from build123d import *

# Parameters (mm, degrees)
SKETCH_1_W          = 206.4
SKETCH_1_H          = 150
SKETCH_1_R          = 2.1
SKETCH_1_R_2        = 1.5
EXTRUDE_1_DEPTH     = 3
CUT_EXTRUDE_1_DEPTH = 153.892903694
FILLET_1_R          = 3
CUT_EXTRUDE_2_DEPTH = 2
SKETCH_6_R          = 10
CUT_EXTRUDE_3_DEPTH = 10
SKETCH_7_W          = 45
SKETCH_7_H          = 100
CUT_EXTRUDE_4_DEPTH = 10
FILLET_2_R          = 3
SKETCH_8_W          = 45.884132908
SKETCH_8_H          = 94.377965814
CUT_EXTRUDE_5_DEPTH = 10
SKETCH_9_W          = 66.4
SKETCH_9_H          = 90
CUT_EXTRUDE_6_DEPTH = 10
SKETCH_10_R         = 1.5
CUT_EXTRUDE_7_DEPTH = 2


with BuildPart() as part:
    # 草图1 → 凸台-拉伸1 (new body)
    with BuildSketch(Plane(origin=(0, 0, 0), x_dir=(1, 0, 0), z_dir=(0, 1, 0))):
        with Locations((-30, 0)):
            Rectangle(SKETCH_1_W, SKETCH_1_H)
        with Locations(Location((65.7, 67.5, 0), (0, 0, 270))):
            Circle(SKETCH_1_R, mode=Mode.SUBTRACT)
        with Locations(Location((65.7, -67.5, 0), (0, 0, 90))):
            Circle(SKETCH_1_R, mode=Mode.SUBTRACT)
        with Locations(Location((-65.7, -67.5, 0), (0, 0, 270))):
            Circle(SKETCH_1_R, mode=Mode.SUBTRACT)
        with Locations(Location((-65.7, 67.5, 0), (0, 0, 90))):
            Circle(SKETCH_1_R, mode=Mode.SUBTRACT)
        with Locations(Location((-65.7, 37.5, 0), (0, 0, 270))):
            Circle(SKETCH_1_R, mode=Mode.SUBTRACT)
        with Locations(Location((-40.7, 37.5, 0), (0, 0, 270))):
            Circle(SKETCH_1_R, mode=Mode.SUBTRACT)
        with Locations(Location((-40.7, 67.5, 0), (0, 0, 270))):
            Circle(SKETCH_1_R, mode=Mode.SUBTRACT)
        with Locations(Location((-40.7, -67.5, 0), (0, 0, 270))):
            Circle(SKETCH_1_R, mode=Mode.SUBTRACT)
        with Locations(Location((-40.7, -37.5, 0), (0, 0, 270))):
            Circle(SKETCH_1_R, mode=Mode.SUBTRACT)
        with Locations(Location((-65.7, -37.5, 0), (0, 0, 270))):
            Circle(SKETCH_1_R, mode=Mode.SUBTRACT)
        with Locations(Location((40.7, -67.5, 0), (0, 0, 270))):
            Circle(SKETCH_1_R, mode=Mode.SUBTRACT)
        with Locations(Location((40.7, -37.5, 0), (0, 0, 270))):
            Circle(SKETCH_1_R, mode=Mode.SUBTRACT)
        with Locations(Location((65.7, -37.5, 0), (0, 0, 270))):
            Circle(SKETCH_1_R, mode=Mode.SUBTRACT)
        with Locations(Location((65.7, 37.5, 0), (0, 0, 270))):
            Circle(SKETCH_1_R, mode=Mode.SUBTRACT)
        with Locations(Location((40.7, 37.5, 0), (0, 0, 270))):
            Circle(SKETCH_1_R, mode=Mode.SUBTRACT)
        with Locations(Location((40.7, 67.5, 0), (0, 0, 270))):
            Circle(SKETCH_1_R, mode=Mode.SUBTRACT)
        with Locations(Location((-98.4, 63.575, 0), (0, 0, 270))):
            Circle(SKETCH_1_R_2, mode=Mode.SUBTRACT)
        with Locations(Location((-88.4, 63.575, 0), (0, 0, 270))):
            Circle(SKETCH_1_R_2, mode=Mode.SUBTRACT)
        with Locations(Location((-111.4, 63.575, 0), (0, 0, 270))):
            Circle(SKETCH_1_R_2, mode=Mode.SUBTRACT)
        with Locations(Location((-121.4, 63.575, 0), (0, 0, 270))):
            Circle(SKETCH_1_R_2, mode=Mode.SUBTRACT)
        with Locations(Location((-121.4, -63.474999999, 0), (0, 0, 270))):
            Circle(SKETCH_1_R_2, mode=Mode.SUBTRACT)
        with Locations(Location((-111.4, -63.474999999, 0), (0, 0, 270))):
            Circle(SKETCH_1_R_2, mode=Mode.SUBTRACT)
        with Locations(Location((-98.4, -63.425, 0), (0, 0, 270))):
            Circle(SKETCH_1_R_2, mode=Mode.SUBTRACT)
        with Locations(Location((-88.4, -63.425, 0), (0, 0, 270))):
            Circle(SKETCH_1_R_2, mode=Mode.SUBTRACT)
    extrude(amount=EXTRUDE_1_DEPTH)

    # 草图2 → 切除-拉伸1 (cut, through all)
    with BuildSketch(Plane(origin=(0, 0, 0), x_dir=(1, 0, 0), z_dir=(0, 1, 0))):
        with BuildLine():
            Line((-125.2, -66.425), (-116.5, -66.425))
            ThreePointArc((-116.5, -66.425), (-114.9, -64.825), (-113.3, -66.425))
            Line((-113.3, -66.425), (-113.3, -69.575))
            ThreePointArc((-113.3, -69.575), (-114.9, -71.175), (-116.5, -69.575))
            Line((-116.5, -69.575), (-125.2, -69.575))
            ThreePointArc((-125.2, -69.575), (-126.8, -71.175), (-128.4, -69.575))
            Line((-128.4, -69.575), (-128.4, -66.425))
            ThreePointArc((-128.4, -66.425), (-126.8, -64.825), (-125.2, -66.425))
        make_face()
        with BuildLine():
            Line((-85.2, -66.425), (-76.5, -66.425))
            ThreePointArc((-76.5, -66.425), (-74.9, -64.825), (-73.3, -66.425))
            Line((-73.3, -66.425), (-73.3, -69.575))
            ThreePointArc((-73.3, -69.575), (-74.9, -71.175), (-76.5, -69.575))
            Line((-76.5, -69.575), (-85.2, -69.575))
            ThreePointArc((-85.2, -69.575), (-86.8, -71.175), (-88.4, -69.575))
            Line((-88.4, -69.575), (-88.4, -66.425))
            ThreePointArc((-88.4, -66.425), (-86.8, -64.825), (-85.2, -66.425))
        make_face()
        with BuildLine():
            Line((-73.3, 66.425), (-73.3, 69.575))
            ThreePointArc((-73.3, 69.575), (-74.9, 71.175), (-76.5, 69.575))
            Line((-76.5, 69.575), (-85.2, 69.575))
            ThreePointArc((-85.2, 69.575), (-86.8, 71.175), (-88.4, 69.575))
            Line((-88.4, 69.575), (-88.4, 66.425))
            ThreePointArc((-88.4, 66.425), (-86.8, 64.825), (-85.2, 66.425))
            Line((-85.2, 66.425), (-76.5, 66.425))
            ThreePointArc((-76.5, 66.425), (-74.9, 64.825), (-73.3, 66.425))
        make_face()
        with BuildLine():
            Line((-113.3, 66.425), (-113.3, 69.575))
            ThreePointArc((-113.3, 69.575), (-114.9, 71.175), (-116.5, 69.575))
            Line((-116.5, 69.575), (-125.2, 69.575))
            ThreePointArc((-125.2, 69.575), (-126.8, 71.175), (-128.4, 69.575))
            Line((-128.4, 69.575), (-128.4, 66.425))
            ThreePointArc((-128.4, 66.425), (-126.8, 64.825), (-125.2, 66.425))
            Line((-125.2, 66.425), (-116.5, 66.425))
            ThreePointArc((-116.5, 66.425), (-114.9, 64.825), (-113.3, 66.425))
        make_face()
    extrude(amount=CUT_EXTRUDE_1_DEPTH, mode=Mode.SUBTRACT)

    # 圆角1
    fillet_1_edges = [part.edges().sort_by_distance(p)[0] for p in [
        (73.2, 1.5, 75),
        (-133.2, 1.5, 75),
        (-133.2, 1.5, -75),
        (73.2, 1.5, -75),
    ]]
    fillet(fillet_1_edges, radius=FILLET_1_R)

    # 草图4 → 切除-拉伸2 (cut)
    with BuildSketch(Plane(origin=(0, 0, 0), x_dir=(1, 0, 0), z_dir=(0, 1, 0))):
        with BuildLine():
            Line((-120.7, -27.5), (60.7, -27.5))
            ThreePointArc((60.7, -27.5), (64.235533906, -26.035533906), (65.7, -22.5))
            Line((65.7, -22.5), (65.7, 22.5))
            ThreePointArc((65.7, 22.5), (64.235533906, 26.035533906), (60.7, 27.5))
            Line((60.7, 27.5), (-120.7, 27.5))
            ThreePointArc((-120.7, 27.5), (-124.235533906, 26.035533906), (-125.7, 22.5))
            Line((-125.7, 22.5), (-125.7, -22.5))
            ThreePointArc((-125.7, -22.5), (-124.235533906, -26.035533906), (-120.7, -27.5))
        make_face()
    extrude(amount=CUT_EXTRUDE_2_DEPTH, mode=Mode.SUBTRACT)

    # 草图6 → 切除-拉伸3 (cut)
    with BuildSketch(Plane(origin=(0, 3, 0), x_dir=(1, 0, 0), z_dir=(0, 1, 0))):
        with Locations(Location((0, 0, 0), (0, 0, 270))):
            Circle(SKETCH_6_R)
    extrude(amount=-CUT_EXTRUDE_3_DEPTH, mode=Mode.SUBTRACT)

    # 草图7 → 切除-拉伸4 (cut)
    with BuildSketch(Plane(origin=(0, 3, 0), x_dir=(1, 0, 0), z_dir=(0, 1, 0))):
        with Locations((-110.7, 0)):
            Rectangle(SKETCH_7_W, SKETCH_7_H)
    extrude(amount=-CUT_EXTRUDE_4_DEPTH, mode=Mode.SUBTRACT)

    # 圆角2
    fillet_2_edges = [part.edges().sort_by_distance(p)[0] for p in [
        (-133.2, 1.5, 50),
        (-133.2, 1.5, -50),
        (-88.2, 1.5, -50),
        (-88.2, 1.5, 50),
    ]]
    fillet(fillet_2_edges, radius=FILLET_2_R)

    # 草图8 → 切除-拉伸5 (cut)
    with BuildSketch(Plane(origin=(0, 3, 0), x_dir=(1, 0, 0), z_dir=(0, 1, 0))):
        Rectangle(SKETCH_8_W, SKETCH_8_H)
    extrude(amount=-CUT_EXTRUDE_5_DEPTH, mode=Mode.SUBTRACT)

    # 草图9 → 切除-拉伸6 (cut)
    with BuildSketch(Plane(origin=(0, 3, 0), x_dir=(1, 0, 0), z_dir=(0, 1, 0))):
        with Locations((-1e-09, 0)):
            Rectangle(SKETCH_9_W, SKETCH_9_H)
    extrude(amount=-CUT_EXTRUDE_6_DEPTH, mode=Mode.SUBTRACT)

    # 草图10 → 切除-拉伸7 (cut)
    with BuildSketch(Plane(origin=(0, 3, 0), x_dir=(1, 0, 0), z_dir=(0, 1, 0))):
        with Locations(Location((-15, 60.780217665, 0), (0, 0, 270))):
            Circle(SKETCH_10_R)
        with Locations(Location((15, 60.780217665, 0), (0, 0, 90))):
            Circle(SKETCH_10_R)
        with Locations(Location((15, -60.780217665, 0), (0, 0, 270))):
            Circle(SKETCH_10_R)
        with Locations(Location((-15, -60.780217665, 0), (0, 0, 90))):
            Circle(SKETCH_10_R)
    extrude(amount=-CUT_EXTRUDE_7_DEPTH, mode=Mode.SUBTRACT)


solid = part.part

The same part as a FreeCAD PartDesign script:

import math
import FreeCAD as App
import Part
import Sketcher


def edges_at(feature, points):
    """Names of the edges that pass closest to the given points."""
    edges = feature.Shape.Edges
    near = lambda p: min(range(len(edges)), key=lambda i: edges[i].distToShape(Part.Vertex(*p))[0])
    return sorted({f"Edge{near(p) + 1}" for p in points})

doc = App.newDocument("Part")
body = doc.addObject("PartDesign::Body", "Body")

# Sketch on XZ plane
sketch1 = doc.addObject("Sketcher::SketchObject", "Sketch")
body.addObject(sketch1)
sketch1.AttachmentSupport = (doc.XZ_Plane, [""])
sketch1.MapMode = "FlatFace"
sketch1.addGeometry([
    Part.LineSegment(App.Vector(-133.2, -75, 0), App.Vector(-133.2, 75, 0)),  # 0
    Part.LineSegment(App.Vector(-133.2, 75, 0), App.Vector(73.2, 75, 0)),  # 1
    Part.LineSegment(App.Vector(73.2, 75, 0), App.Vector(73.2, -75, 0)),  # 2
    Part.LineSegment(App.Vector(73.2, -75, 0), App.Vector(-133.2, -75, 0)),  # 3
    Part.Circle(App.Vector(-121.4, 63.475, 0), App.Vector(0, 0, 1), 1.5),  # 4
    Part.Circle(App.Vector(-111.4, 63.475, 0), App.Vector(0, 0, 1), 1.5),  # 5
    Part.Circle(App.Vector(-98.4, 63.425, 0), App.Vector(0, 0, 1), 1.5),  # 6
    Part.Circle(App.Vector(-88.4, 63.425, 0), App.Vector(0, 0, 1), 1.5),  # 7
    Part.Circle(App.Vector(-65.7, 67.5, 0), App.Vector(0, 0, 1), 2.1),  # 8
    Part.Circle(App.Vector(-40.7, 67.5, 0), App.Vector(0, 0, 1), 2.1),  # 9
    Part.Circle(App.Vector(-65.7, 37.5, 0), App.Vector(0, 0, 1), 2.1),  # 10
    Part.Circle(App.Vector(-40.7, 37.5, 0), App.Vector(0, 0, 1), 2.1),  # 11
    Part.Circle(App.Vector(40.7, 67.5, 0), App.Vector(0, 0, 1), 2.1),  # 12
    Part.Circle(App.Vector(65.7, 67.5, 0), App.Vector(0, 0, 1), 2.1),  # 13
    Part.Circle(App.Vector(40.7, 37.5, 0), App.Vector(0, 0, 1), 2.1),  # 14
    Part.Circle(App.Vector(65.7, 37.5, 0), App.Vector(0, 0, 1), 2.1),  # 15
    Part.Circle(App.Vector(-121.4, -63.575, 0), App.Vector(0, 0, 1), 1.5),  # 16
    Part.Circle(App.Vector(-111.4, -63.575, 0), App.Vector(0, 0, 1), 1.5),  # 17
    Part.Circle(App.Vector(-98.4, -63.575, 0), App.Vector(0, 0, 1), 1.5),  # 18
    Part.Circle(App.Vector(-88.4, -63.575, 0), App.Vector(0, 0, 1), 1.5),  # 19
    Part.Circle(App.Vector(-65.7, -37.5, 0), App.Vector(0, 0, 1), 2.1),  # 20
    Part.Circle(App.Vector(-40.7, -37.5, 0), App.Vector(0, 0, 1), 2.1),  # 21
    Part.Circle(App.Vector(-65.7, -67.5, 0), App.Vector(0, 0, 1), 2.1),  # 22
    Part.Circle(App.Vector(-40.7, -67.5, 0), App.Vector(0, 0, 1), 2.1),  # 23
    Part.Circle(App.Vector(40.7, -37.5, 0), App.Vector(0, 0, 1), 2.1),  # 24
    Part.Circle(App.Vector(65.7, -37.5, 0), App.Vector(0, 0, 1), 2.1),  # 25
    Part.Circle(App.Vector(40.7, -67.5, 0), App.Vector(0, 0, 1), 2.1),  # 26
    Part.Circle(App.Vector(65.7, -67.5, 0), App.Vector(0, 0, 1), 2.1),  # 27
], False)
sketch1.addConstraint([
    Sketcher.Constraint("Coincident", 0, 2, 1, 1),
    Sketcher.Constraint("Coincident", 1, 2, 2, 1),
    Sketcher.Constraint("Coincident", 2, 2, 3, 1),
    Sketcher.Constraint("Coincident", 3, 2, 0, 1),
    Sketcher.Constraint("Vertical", 0),
    Sketcher.Constraint("Horizontal", 1),
    Sketcher.Constraint("Vertical", 2),
    Sketcher.Constraint("Horizontal", 3),
    Sketcher.Constraint("Equal", 4, 5),
    Sketcher.Constraint("Equal", 5, 6),
    Sketcher.Constraint("Equal", 6, 7),
    Sketcher.Constraint("Equal", 8, 9),
    Sketcher.Constraint("Equal", 9, 10),
    Sketcher.Constraint("Equal", 10, 11),
    Sketcher.Constraint("Equal", 11, 12),
    Sketcher.Constraint("Equal", 12, 13),
    Sketcher.Constraint("Equal", 13, 14),
    Sketcher.Constraint("Equal", 14, 15),
    Sketcher.Constraint("Equal", 7, 16),
    Sketcher.Constraint("Equal", 16, 17),
    Sketcher.Constraint("Equal", 17, 18),
    Sketcher.Constraint("Equal", 18, 19),
    Sketcher.Constraint("Equal", 15, 20),
    Sketcher.Constraint("Equal", 20, 21),
    Sketcher.Constraint("Equal", 21, 22),
    Sketcher.Constraint("Equal", 22, 23),
    Sketcher.Constraint("Equal", 23, 24),
    Sketcher.Constraint("Equal", 24, 25),
    Sketcher.Constraint("Equal", 25, 26),
    Sketcher.Constraint("Equal", 26, 27),
    Sketcher.Constraint("Symmetric", 15, 3, 20, 3, -1, 1),
    Sketcher.Constraint("Symmetric", 14, 3, 21, 3, -1, 1),
    Sketcher.Constraint("Symmetric", 13, 3, 22, 3, -1, 1),
    Sketcher.Constraint("Symmetric", 12, 3, 23, 3, -1, 1),
    Sketcher.Constraint("Symmetric", 11, 3, 24, 3, -1, 1),
    Sketcher.Constraint("Symmetric", 10, 3, 25, 3, -1, 1),
    Sketcher.Constraint("Symmetric", 9, 3, 26, 3, -1, 1),
    Sketcher.Constraint("Symmetric", 8, 3, 27, 3, -1, 1),
    Sketcher.Constraint("Symmetric", 9, 3, 12, 3, -2),
    Sketcher.Constraint("Symmetric", 8, 3, 13, 3, -2),
    Sketcher.Constraint("Symmetric", 11, 3, 14, 3, -2),
    Sketcher.Constraint("Symmetric", 10, 3, 15, 3, -2),
    Sketcher.Constraint("Horizontal", 4, 3, 5, 3),
    Sketcher.Constraint("Horizontal", 6, 3, 7, 3),
    Sketcher.Constraint("Horizontal", 8, 3, 9, 3),
    Sketcher.Constraint("Horizontal", 10, 3, 11, 3),
    Sketcher.Constraint("Horizontal", 16, 3, 17, 3),
    Sketcher.Constraint("Horizontal", 17, 3, 18, 3),
    Sketcher.Constraint("Horizontal", 18, 3, 19, 3),
    Sketcher.Constraint("Vertical", 8, 3, 10, 3),
    Sketcher.Constraint("Vertical", 9, 3, 11, 3),
    Sketcher.Constraint("Vertical", 4, 3, 16, 3),
    Sketcher.Constraint("Vertical", 5, 3, 17, 3),
    Sketcher.Constraint("Vertical", 6, 3, 18, 3),
    Sketcher.Constraint("Vertical", 7, 3, 19, 3),
    Sketcher.Constraint("Diameter", 4, 3.0),
    Sketcher.Constraint("Diameter", 8, 4.2),
    Sketcher.Constraint("DistanceY", 0, 1, 0, 2, 150.0),
    Sketcher.Constraint("DistanceX", 1, 1, 1, 2, 206.4),
    Sketcher.Constraint("DistanceY", -1, 1, 0, 2, 75.0),
    Sketcher.Constraint("DistanceX", 4, 3, 5, 3, 10.0),
    Sketcher.Constraint("DistanceX", 5, 3, 6, 3, 13.0),
    Sketcher.Constraint("DistanceX", 6, 3, 7, 3, 10.0),
    Sketcher.Constraint("DistanceX", 8, 3, 9, 3, 25.0),
    Sketcher.Constraint("DistanceY", 10, 3, 8, 3, 30.0),
    Sketcher.Constraint("DistanceY", 16, 3, 6, 3, 127.0),
    Sketcher.Constraint("DistanceY", 20, 3, 10, 3, 75.0),
    Sketcher.Constraint("DistanceX", 4, 3, -1, 1, 121.4),
    Sketcher.Constraint("DistanceX", 8, 3, -1, 1, 65.7),
    Sketcher.Constraint("DistanceX", 0, 2, -1, 1, 133.2),
    Sketcher.Constraint("DistanceY", 6, 3, 5, 3, 0.05),
    Sketcher.Constraint("DistanceY", -1, 1, 4, 3, 63.475),
])
pad1 = doc.addObject("PartDesign::Pad", "Pad")
body.addObject(pad1)
pad1.Profile = sketch1
pad1.Length = 3
pad1.Reversed = True

# Sketch on XZ plane
sketch2 = doc.addObject("Sketcher::SketchObject", "Sketch001")
body.addObject(sketch2)
sketch2.AttachmentSupport = (doc.XZ_Plane, [""])
sketch2.MapMode = "FlatFace"
sketch2.addGeometry([
    Part.LineSegment(App.Vector(-116.5, 66.425, 0), App.Vector(-125.2, 66.425, 0)),  # 0
    Part.ArcOfCircle(Part.Circle(App.Vector(-126.8, 66.425, 0), App.Vector(0, 0, 1), 1.6), math.radians(180), math.radians(360)),  # 1
    Part.LineSegment(App.Vector(-128.4, 66.425, 0), App.Vector(-128.4, 69.575, 0)),  # 2
    Part.ArcOfCircle(Part.Circle(App.Vector(-126.8, 69.575, 0), App.Vector(0, 0, 1), 1.6), math.radians(0), math.radians(180)),  # 3
    Part.LineSegment(App.Vector(-125.2, 69.575, 0), App.Vector(-116.5, 69.575, 0)),  # 4
    Part.ArcOfCircle(Part.Circle(App.Vector(-114.9, 69.575, 0), App.Vector(0, 0, 1), 1.6), math.radians(0), math.radians(180)),  # 5
    Part.LineSegment(App.Vector(-113.3, 69.575, 0), App.Vector(-113.3, 66.425, 0)),  # 6
    Part.ArcOfCircle(Part.Circle(App.Vector(-114.9, 66.425, 0), App.Vector(0, 0, 1), 1.6), math.radians(180), math.radians(360)),  # 7
    Part.LineSegment(App.Vector(-76.5, 66.425, 0), App.Vector(-85.2, 66.425, 0)),  # 8
    Part.ArcOfCircle(Part.Circle(App.Vector(-86.8, 66.425, 0), App.Vector(0, 0, 1), 1.6), math.radians(180), math.radians(360)),  # 9
    Part.LineSegment(App.Vector(-88.4, 66.425, 0), App.Vector(-88.4, 69.575, 0)),  # 10
    Part.ArcOfCircle(Part.Circle(App.Vector(-86.8, 69.575, 0), App.Vector(0, 0, 1), 1.6), math.radians(0), math.radians(180)),  # 11
    Part.LineSegment(App.Vector(-85.2, 69.575, 0), App.Vector(-76.5, 69.575, 0)),  # 12
    Part.ArcOfCircle(Part.Circle(App.Vector(-74.9, 69.575, 0), App.Vector(0, 0, 1), 1.6), math.radians(0), math.radians(180)),  # 13
    Part.LineSegment(App.Vector(-73.3, 69.575, 0), App.Vector(-73.3, 66.425, 0)),  # 14
    Part.ArcOfCircle(Part.Circle(App.Vector(-74.9, 66.425, 0), App.Vector(0, 0, 1), 1.6), math.radians(180), math.radians(360)),  # 15
    Part.LineSegment(App.Vector(-73.3, -66.425, 0), App.Vector(-73.3, -69.575, 0)),  # 16
    Part.ArcOfCircle(Part.Circle(App.Vector(-74.9, -69.575, 0), App.Vector(0, 0, 1), 1.6), math.radians(180), math.radians(360)),  # 17
    Part.LineSegment(App.Vector(-76.5, -69.575, 0), App.Vector(-85.2, -69.575, 0)),  # 18
    Part.ArcOfCircle(Part.Circle(App.Vector(-86.8, -69.575, 0), App.Vector(0, 0, 1), 1.6), math.radians(180), math.radians(360)),  # 19
    Part.LineSegment(App.Vector(-88.4, -69.575, 0), App.Vector(-88.4, -66.425, 0)),  # 20
    Part.ArcOfCircle(Part.Circle(App.Vector(-86.8, -66.425, 0), App.Vector(0, 0, 1), 1.6), math.radians(0), math.radians(180)),  # 21
    Part.LineSegment(App.Vector(-85.2, -66.425, 0), App.Vector(-76.5, -66.425, 0)),  # 22
    Part.ArcOfCircle(Part.Circle(App.Vector(-74.9, -66.425, 0), App.Vector(0, 0, 1), 1.6), math.radians(0), math.radians(180)),  # 23
    Part.LineSegment(App.Vector(-113.3, -66.425, 0), App.Vector(-113.3, -69.575, 0)),  # 24
    Part.ArcOfCircle(Part.Circle(App.Vector(-114.9, -69.575, 0), App.Vector(0, 0, 1), 1.6), math.radians(180), math.radians(360)),  # 25
    Part.LineSegment(App.Vector(-116.5, -69.575, 0), App.Vector(-125.2, -69.575, 0)),  # 26
    Part.ArcOfCircle(Part.Circle(App.Vector(-126.8, -69.575, 0), App.Vector(0, 0, 1), 1.6), math.radians(180), math.radians(360)),  # 27
    Part.LineSegment(App.Vector(-128.4, -69.575, 0), App.Vector(-128.4, -66.425, 0)),  # 28
    Part.ArcOfCircle(Part.Circle(App.Vector(-126.8, -66.425, 0), App.Vector(0, 0, 1), 1.6), math.radians(0), math.radians(180)),  # 29
    Part.LineSegment(App.Vector(-125.2, -66.425, 0), App.Vector(-116.5, -66.425, 0)),  # 30
    Part.ArcOfCircle(Part.Circle(App.Vector(-114.9, -66.425, 0), App.Vector(0, 0, 1), 1.6), math.radians(0), math.radians(180)),  # 31
], False)
sketch2.addConstraint([
    Sketcher.Constraint("Coincident", 0, 2, 1, 2),
    Sketcher.Constraint("Tangent", 1, 1, 2, 1),
    Sketcher.Constraint("Tangent", 2, 2, 3, 2),
    Sketcher.Constraint("Coincident", 3, 1, 4, 1),
    Sketcher.Constraint("Coincident", 4, 2, 5, 2),
    Sketcher.Constraint("Tangent", 5, 1, 6, 1),
    Sketcher.Constraint("Tangent", 6, 2, 7, 2),
    Sketcher.Constraint("Coincident", 7, 1, 0, 1),
    Sketcher.Constraint("Coincident", 8, 2, 9, 2),
    Sketcher.Constraint("Tangent", 9, 1, 10, 1),
    Sketcher.Constraint("Tangent", 10, 2, 11, 2),
    Sketcher.Constraint("Coincident", 11, 1, 12, 1),
    Sketcher.Constraint("Coincident", 12, 2, 13, 2),
    Sketcher.Constraint("Tangent", 13, 1, 14, 1),
    Sketcher.Constraint("Tangent", 14, 2, 15, 2),
    Sketcher.Constraint("Coincident", 15, 1, 8, 1),
    Sketcher.Constraint("Tangent", 16, 2, 17, 2),
    Sketcher.Constraint("Coincident", 17, 1, 18, 1),
    Sketcher.Constraint("Coincident", 18, 2, 19, 2),
    Sketcher.Constraint("Tangent", 19, 1, 20, 1),
    Sketcher.Constraint("Tangent", 20, 2, 21, 2),
    Sketcher.Constraint("Coincident", 21, 1, 22, 1),
    Sketcher.Constraint("Coincident", 22, 2, 23, 2),
    Sketcher.Constraint("Tangent", 23, 1, 16, 1),
    Sketcher.Constraint("Tangent", 24, 2, 25, 2),
    Sketcher.Constraint("Coincident", 25, 1, 26, 1),
    Sketcher.Constraint("Coincident", 26, 2, 27, 2),
    Sketcher.Constraint("Tangent", 27, 1, 28, 1),
    Sketcher.Constraint("Tangent", 28, 2, 29, 2),
    Sketcher.Constraint("Coincident", 29, 1, 30, 1),
    Sketcher.Constraint("Coincident", 30, 2, 31, 2),
    Sketcher.Constraint("Tangent", 31, 1, 24, 1),
    Sketcher.Constraint("Horizontal", 0),
    Sketcher.Constraint("Vertical", 2),
    Sketcher.Constraint("Horizontal", 4),
    Sketcher.Constraint("Vertical", 6),
    Sketcher.Constraint("Horizontal", 8),
    Sketcher.Constraint("Vertical", 10),
    Sketcher.Constraint("Horizontal", 12),
    Sketcher.Constraint("Vertical", 14),
    Sketcher.Constraint("Vertical", 16),
    Sketcher.Constraint("Horizontal", 18),
    Sketcher.Constraint("Vertical", 20),
    Sketcher.Constraint("Horizontal", 22),
    Sketcher.Constraint("Vertical", 24),
    Sketcher.Constraint("Horizontal", 26),
    Sketcher.Constraint("Vertical", 28),
    Sketcher.Constraint("Horizontal", 30),
    Sketcher.Constraint("Equal", 1, 3),
    Sketcher.Constraint("Equal", 3, 5),
    Sketcher.Constraint("Equal", 5, 7),
    Sketcher.Constraint("Equal", 7, 9),
    Sketcher.Constraint("Equal", 9, 11),
    Sketcher.Constraint("Equal", 11, 13),
    Sketcher.Constraint("Equal", 13, 15),
    Sketcher.Constraint("Equal", 15, 17),
    Sketcher.Constraint("Equal", 17, 19),
    Sketcher.Constraint("Equal", 19, 21),
    Sketcher.Constraint("Equal", 21, 23),
    Sketcher.Constraint("Equal", 23, 25),
    Sketcher.Constraint("Equal", 25, 27),
    Sketcher.Constraint("Equal", 27, 29),
    Sketcher.Constraint("Equal", 29, 31),
    Sketcher.Constraint("Symmetric", 13, 3, 17, 3, -1),
    Sketcher.Constraint("Symmetric", 11, 3, 19, 3, -1),
    Sketcher.Constraint("Symmetric", 5, 3, 25, 3, -1),
    Sketcher.Constraint("Symmetric", 3, 3, 27, 3, -1),
    Sketcher.Constraint("Horizontal", 3, 3, 5, 3),
    Sketcher.Constraint("Horizontal", 1, 3, 7, 3),
    Sketcher.Constraint("Horizontal", 7, 3, 9, 3),
    Sketcher.Constraint("Horizontal", 5, 3, 11, 3),
    Sketcher.Constraint("Horizontal", 11, 3, 13, 3),
    Sketcher.Constraint("Horizontal", 9, 3, 15, 3),
    Sketcher.Constraint("Horizontal", 21, 3, 23, 3),
    Sketcher.Constraint("Horizontal", 23, 3, 29, 3),
    Sketcher.Constraint("Horizontal", 29, 3, 31, 3),
    Sketcher.Constraint("Horizontal", 15, 3, 0, 2),
    Sketcher.Constraint("Horizontal", 2, 2, 3, 1),
    Sketcher.Constraint("Horizontal", 7, 1, 8, 2),
    Sketcher.Constraint("Horizontal", 10, 2, 11, 1),
    Sketcher.Constraint("Horizontal", 16, 2, 17, 1),
    Sketcher.Constraint("Horizontal", 20, 2, 21, 1),
    Sketcher.Constraint("Horizontal", 24, 2, 25, 1),
    Sketcher.Constraint("Horizontal", 28, 2, 29, 1),
    Sketcher.Constraint("Equal", 4, 8),
    Sketcher.Constraint("Equal", 14, 16),
    Sketcher.Constraint("Radius", 1, 1.6),
    Sketcher.Constraint("DistanceX", 0, 2, 0, 1, 8.7),
    Sketcher.Constraint("DistanceX", 1, 3, 9, 3, 40.0),
    Sketcher.Constraint("DistanceY", 17, 3, 15, 3, 136.0),
    Sketcher.Constraint("DistanceY", 2, 1, 2, 2, 3.15),
    Sketcher.Constraint("DistanceX", 1, 3, -1, 1, 126.8),
])
pocket1 = doc.addObject("PartDesign::Pocket", "Pocket")
body.addObject(pocket1)
pocket1.Profile = sketch2
pocket1.Type = "ThroughAll"
doc.recompute()

fillet = doc.addObject("PartDesign::Fillet", "Fillet")
body.addObject(fillet)
fillet.Base = (pocket1, edges_at(pocket1, [
    (73.2, 1.5, 75),
    (-133.2, 1.5, 75),
    (-133.2, 1.5, -75),
    (73.2, 1.5, -75),
]))
fillet.Radius = 3

# Sketch on XZ plane
sketch3 = doc.addObject("Sketcher::SketchObject", "Sketch002")
body.addObject(sketch3)
sketch3.AttachmentSupport = (doc.XZ_Plane, [""])
sketch3.MapMode = "FlatFace"
sketch3.addGeometry([
    Part.LineSegment(App.Vector(-120.7, 27.5, 0), App.Vector(60.7, 27.5, 0)),  # 0
    Part.ArcOfCircle(Part.Circle(App.Vector(60.7, 22.5, 0), App.Vector(0, 0, 1), 5), math.radians(0), math.radians(90)),  # 1
    Part.LineSegment(App.Vector(65.7, 22.5, 0), App.Vector(65.7, -22.5, 0)),  # 2
    Part.ArcOfCircle(Part.Circle(App.Vector(60.7, -22.5, 0), App.Vector(0, 0, 1), 5), math.radians(-90), math.radians(0)),  # 3
    Part.LineSegment(App.Vector(60.7, -27.5, 0), App.Vector(-120.7, -27.5, 0)),  # 4
    Part.ArcOfCircle(Part.Circle(App.Vector(-120.7, -22.5, 0), App.Vector(0, 0, 1), 5), math.radians(180), math.radians(270)),  # 5
    Part.LineSegment(App.Vector(-125.7, -22.5, 0), App.Vector(-125.7, 22.5, 0)),  # 6
    Part.ArcOfCircle(Part.Circle(App.Vector(-120.7, 22.5, 0), App.Vector(0, 0, 1), 5), math.radians(90), math.radians(180)),  # 7
], False)
sketch3.addConstraint([
    Sketcher.Constraint("Tangent", 0, 2, 1, 2),
    Sketcher.Constraint("Tangent", 1, 1, 2, 1),
    Sketcher.Constraint("Tangent", 2, 2, 3, 2),
    Sketcher.Constraint("Tangent", 3, 1, 4, 1),
    Sketcher.Constraint("Tangent", 4, 2, 5, 2),
    Sketcher.Constraint("Tangent", 5, 1, 6, 1),
    Sketcher.Constraint("Tangent", 6, 2, 7, 2),
    Sketcher.Constraint("Tangent", 7, 1, 0, 1),
    Sketcher.Constraint("Horizontal", 0),
    Sketcher.Constraint("Vertical", 2),
    Sketcher.Constraint("Horizontal", 4),
    Sketcher.Constraint("Vertical", 6),
    Sketcher.Constraint("Equal", 1, 3),
    Sketcher.Constraint("Equal", 3, 5),
    Sketcher.Constraint("Equal", 5, 7),
    Sketcher.Constraint("Radius", 1, 5.0),
    Sketcher.Constraint("DistanceY", 2, 2, 2, 1, 45.0),
    Sketcher.Constraint("DistanceX", 0, 1, 0, 2, 181.4),
    Sketcher.Constraint("DistanceX", -1, 1, 1, 3, 60.7),
    Sketcher.Constraint("DistanceY", -1, 1, 1, 3, 22.5),
])
pocket2 = doc.addObject("PartDesign::Pocket", "Pocket001")
body.addObject(pocket2)
pocket2.Profile = sketch3
pocket2.Length = 2

# Sketch on XZ plane
sketch4 = doc.addObject("Sketcher::SketchObject", "Sketch003")
body.addObject(sketch4)
sketch4.AttachmentSupport = (doc.XZ_Plane, [""])
sketch4.MapMode = "FlatFace"
sketch4.AttachmentOffset = App.Placement(App.Vector(0, 0, -3), App.Rotation())
sketch4.addGeometry(Part.Circle(App.Vector(0, 0, 0), App.Vector(0, 0, 1), 10), False)
sketch4.addConstraint([
    Sketcher.Constraint("Coincident", 0, 3, -1, 1),
    Sketcher.Constraint("Diameter", 0, 20.0),
])
pocket3 = doc.addObject("PartDesign::Pocket", "Pocket002")
body.addObject(pocket3)
pocket3.Profile = sketch4
pocket3.Length = 10
pocket3.Reversed = True

# Sketch on XZ plane
sketch5 = doc.addObject("Sketcher::SketchObject", "Sketch004")
body.addObject(sketch5)
sketch5.AttachmentSupport = (doc.XZ_Plane, [""])
sketch5.MapMode = "FlatFace"
sketch5.AttachmentOffset = App.Placement(App.Vector(0, 0, -3), App.Rotation())
sketch5.addGeometry([
    Part.LineSegment(App.Vector(-133.2, -50, 0), App.Vector(-133.2, 50, 0)),
    Part.LineSegment(App.Vector(-133.2, 50, 0), App.Vector(-88.2, 50, 0)),
    Part.LineSegment(App.Vector(-88.2, 50, 0), App.Vector(-88.2, -50, 0)),
    Part.LineSegment(App.Vector(-88.2, -50, 0), App.Vector(-133.2, -50, 0)),
], False)
sketch5.addConstraint([
    Sketcher.Constraint("Coincident", 0, 2, 1, 1),
    Sketcher.Constraint("Coincident", 1, 2, 2, 1),
    Sketcher.Constraint("Coincident", 2, 2, 3, 1),
    Sketcher.Constraint("Coincident", 3, 2, 0, 1),
    Sketcher.Constraint("Vertical", 0),
    Sketcher.Constraint("Horizontal", 1),
    Sketcher.Constraint("Vertical", 2),
    Sketcher.Constraint("Horizontal", 3),
    Sketcher.Constraint("DistanceX", 1, 1, 1, 2, 45.0),
    Sketcher.Constraint("DistanceY", 0, 1, 0, 2, 100.0),
    Sketcher.Constraint("DistanceY", -1, 1, 0, 2, 50.0),
    Sketcher.Constraint("DistanceX", 0, 2, -1, 1, 133.2),
])
pocket4 = doc.addObject("PartDesign::Pocket", "Pocket003")
body.addObject(pocket4)
pocket4.Profile = sketch5
pocket4.Length = 10
pocket4.Reversed = True
doc.recompute()

fillet2 = doc.addObject("PartDesign::Fillet", "Fillet001")
body.addObject(fillet2)
fillet2.Base = (pocket4, edges_at(pocket4, [
    (-133.2, 1.5, 50),
    (-133.2, 1.5, -50),
    (-88.2, 1.5, -50),
    (-88.2, 1.5, 50),
]))
fillet2.Radius = 3

# Sketch on XZ plane
sketch6 = doc.addObject("Sketcher::SketchObject", "Sketch005")
body.addObject(sketch6)
sketch6.AttachmentSupport = (doc.XZ_Plane, [""])
sketch6.MapMode = "FlatFace"
sketch6.AttachmentOffset = App.Placement(App.Vector(0, 0, -3), App.Rotation())
sketch6.addGeometry([
    Part.LineSegment(App.Vector(-22.942066, -47.188983, 0), App.Vector(-22.942066, 47.188983, 0)),
    Part.LineSegment(App.Vector(-22.942066, 47.188983, 0), App.Vector(22.942066, 47.188983, 0)),
    Part.LineSegment(App.Vector(22.942066, 47.188983, 0), App.Vector(22.942066, -47.188983, 0)),
    Part.LineSegment(App.Vector(22.942066, -47.188983, 0), App.Vector(-22.942066, -47.188983, 0)),
], False)
sketch6.addConstraint([
    Sketcher.Constraint("Coincident", 0, 2, 1, 1),
    Sketcher.Constraint("Coincident", 1, 2, 2, 1),
    Sketcher.Constraint("Coincident", 2, 2, 3, 1),
    Sketcher.Constraint("Coincident", 3, 2, 0, 1),
    Sketcher.Constraint("Vertical", 0),
    Sketcher.Constraint("Horizontal", 1),
    Sketcher.Constraint("Vertical", 2),
    Sketcher.Constraint("Horizontal", 3),
    Sketcher.Constraint("Symmetric", 0, 2, 2, 2, -1, 1),
    Sketcher.Constraint("DistanceX", 1, 1, 1, 2, 45.884133),
    Sketcher.Constraint("DistanceY", 0, 1, 0, 2, 94.377966),
])
pocket5 = doc.addObject("PartDesign::Pocket", "Pocket004")
body.addObject(pocket5)
pocket5.Profile = sketch6
pocket5.Length = 10
pocket5.Reversed = True

# Sketch on XZ plane
sketch7 = doc.addObject("Sketcher::SketchObject", "Sketch006")
body.addObject(sketch7)
sketch7.AttachmentSupport = (doc.XZ_Plane, [""])
sketch7.MapMode = "FlatFace"
sketch7.AttachmentOffset = App.Placement(App.Vector(0, 0, -3), App.Rotation())
sketch7.addGeometry([
    Part.LineSegment(App.Vector(-33.2, -45, 0), App.Vector(-33.2, 45, 0)),
    Part.LineSegment(App.Vector(-33.2, 45, 0), App.Vector(33.2, 45, 0)),
    Part.LineSegment(App.Vector(33.2, 45, 0), App.Vector(33.2, -45, 0)),
    Part.LineSegment(App.Vector(33.2, -45, 0), App.Vector(-33.2, -45, 0)),
], False)
sketch7.addConstraint([
    Sketcher.Constraint("Coincident", 0, 2, 1, 1),
    Sketcher.Constraint("Coincident", 1, 2, 2, 1),
    Sketcher.Constraint("Coincident", 2, 2, 3, 1),
    Sketcher.Constraint("Coincident", 3, 2, 0, 1),
    Sketcher.Constraint("Vertical", 0),
    Sketcher.Constraint("Horizontal", 1),
    Sketcher.Constraint("Vertical", 2),
    Sketcher.Constraint("Horizontal", 3),
    Sketcher.Constraint("Symmetric", 0, 2, 2, 2, -1, 1),
    Sketcher.Constraint("DistanceY", 0, 1, 0, 2, 90.0),
    Sketcher.Constraint("DistanceX", 1, 1, 1, 2, 66.4),
])
pocket6 = doc.addObject("PartDesign::Pocket", "Pocket005")
body.addObject(pocket6)
pocket6.Profile = sketch7
pocket6.Length = 10
pocket6.Reversed = True

# Sketch on XZ plane
sketch8 = doc.addObject("Sketcher::SketchObject", "Sketch007")
body.addObject(sketch8)
sketch8.AttachmentSupport = (doc.XZ_Plane, [""])
sketch8.MapMode = "FlatFace"
sketch8.AttachmentOffset = App.Placement(App.Vector(0, 0, -3), App.Rotation())
sketch8.addGeometry([
    Part.Circle(App.Vector(-15, -60.780218, 0), App.Vector(0, 0, 1), 1.5),
    Part.Circle(App.Vector(15, -60.780218, 0), App.Vector(0, 0, 1), 1.5),
    Part.Circle(App.Vector(15, 60.780218, 0), App.Vector(0, 0, 1), 1.5),
    Part.Circle(App.Vector(-15, 60.780218, 0), App.Vector(0, 0, 1), 1.5),
], False)
sketch8.addConstraint([
    Sketcher.Constraint("Equal", 0, 1),
    Sketcher.Constraint("Equal", 1, 2),
    Sketcher.Constraint("Equal", 2, 3),
    Sketcher.Constraint("Symmetric", 0, 3, 2, 3, -1, 1),
    Sketcher.Constraint("Symmetric", 1, 3, 3, 3, -1, 1),
    Sketcher.Constraint("Symmetric", 0, 3, 1, 3, -2),
    Sketcher.Constraint("Diameter", 0, 3.0),
    Sketcher.Constraint("DistanceX", 0, 3, -1, 1, 15.0),
    Sketcher.Constraint("DistanceY", 0, 3, -1, 1, 60.780218),
])
pocket7 = doc.addObject("PartDesign::Pocket", "Pocket006")
body.addObject(pocket7)
pocket7.Profile = sketch8
pocket7.Length = 2
pocket7.Reversed = True

doc.recompute()
